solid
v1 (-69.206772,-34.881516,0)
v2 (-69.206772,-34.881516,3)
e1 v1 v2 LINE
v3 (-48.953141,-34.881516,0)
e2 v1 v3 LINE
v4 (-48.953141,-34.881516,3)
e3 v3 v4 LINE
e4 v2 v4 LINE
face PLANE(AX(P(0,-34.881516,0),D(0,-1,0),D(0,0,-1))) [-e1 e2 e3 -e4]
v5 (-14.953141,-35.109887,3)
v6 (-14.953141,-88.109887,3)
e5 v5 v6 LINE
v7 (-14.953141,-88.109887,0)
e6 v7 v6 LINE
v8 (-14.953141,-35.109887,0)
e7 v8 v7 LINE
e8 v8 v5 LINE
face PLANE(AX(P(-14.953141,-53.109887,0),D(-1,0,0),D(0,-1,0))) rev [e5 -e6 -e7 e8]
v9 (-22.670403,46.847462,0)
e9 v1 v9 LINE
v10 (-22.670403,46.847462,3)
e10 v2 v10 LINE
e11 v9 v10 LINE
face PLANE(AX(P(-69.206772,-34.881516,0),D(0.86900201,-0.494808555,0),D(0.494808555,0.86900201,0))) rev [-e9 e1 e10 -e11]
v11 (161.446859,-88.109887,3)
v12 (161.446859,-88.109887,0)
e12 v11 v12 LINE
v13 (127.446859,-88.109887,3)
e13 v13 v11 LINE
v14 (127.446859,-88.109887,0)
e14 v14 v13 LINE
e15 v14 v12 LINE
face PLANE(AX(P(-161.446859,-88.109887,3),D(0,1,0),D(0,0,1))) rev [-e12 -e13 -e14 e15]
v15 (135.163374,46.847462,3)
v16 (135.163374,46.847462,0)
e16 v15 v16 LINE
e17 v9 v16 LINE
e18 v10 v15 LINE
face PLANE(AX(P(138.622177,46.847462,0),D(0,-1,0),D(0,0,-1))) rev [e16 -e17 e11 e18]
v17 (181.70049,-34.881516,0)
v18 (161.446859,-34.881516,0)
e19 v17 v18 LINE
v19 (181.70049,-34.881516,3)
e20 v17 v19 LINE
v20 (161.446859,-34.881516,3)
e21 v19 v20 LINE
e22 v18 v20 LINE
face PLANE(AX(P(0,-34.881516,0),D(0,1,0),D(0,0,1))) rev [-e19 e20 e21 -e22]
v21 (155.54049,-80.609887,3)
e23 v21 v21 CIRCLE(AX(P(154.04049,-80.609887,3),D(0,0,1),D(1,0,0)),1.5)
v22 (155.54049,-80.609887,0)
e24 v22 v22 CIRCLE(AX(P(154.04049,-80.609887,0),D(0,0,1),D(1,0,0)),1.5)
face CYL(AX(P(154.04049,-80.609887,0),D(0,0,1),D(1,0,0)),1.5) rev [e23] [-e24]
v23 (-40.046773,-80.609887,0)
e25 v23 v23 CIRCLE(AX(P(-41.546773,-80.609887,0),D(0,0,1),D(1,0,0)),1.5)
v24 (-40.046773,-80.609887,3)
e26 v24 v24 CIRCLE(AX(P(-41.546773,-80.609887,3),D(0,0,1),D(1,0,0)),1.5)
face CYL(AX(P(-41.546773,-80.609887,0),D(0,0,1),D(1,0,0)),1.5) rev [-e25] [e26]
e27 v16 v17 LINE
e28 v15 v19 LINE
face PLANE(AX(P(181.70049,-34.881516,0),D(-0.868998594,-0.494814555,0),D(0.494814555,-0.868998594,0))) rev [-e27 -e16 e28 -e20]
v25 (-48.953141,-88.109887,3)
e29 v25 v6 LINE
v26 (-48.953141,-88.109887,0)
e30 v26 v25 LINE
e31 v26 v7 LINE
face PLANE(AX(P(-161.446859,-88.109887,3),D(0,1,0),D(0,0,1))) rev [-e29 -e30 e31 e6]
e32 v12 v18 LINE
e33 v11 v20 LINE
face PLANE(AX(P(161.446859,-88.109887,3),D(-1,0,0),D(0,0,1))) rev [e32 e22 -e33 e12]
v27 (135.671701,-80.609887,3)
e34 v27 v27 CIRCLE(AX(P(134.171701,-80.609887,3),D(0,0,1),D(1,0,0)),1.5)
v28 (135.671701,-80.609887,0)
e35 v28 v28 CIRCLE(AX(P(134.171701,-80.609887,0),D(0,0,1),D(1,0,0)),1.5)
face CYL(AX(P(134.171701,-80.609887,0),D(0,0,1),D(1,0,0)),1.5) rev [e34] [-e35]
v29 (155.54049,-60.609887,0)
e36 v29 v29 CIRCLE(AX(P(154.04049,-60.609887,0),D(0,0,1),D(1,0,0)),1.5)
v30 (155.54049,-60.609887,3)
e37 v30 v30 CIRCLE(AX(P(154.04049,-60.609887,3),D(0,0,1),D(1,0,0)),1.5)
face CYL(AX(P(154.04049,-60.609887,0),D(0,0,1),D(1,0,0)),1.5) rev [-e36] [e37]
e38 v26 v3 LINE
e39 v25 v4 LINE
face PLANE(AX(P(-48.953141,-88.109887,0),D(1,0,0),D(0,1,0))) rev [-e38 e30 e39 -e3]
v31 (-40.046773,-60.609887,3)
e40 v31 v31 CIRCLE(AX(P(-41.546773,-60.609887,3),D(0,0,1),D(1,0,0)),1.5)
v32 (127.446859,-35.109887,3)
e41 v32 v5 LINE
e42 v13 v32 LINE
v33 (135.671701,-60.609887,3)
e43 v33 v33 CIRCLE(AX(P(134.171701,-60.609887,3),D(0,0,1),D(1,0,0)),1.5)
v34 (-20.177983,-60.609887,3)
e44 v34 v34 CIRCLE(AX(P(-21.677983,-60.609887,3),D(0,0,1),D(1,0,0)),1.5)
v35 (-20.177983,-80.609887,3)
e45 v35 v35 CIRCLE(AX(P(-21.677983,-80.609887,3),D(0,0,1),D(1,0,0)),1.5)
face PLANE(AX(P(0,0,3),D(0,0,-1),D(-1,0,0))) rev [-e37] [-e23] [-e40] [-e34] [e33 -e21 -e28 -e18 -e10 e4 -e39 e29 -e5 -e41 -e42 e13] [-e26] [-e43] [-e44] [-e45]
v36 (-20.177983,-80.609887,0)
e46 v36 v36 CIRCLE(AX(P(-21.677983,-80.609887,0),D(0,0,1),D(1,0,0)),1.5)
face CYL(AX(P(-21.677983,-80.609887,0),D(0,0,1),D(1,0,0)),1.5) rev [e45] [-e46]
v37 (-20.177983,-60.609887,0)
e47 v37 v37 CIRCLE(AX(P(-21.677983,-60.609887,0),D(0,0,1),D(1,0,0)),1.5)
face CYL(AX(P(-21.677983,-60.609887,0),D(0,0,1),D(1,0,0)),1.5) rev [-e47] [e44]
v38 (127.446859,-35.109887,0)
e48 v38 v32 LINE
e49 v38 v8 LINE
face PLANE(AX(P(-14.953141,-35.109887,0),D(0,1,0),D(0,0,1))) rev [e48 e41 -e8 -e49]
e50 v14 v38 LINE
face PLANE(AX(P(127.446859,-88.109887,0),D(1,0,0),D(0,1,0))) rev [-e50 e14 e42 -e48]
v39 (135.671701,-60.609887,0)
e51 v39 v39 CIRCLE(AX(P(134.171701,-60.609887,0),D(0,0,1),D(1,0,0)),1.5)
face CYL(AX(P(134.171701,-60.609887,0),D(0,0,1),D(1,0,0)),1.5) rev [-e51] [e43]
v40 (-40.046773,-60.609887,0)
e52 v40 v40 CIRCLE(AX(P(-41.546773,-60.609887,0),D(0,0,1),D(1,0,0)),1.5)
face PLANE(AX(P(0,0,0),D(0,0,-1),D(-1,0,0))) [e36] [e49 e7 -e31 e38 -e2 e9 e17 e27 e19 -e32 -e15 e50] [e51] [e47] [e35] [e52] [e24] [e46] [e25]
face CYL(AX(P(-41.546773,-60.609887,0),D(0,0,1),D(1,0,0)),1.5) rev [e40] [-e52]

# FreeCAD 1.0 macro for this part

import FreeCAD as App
import Part
import Sketcher
Q = App.Units.Quantity

doc = App.newDocument("Part")
body = doc.addObject("PartDesign::Body", "Body")

# Sketch on XY plane
sketch1 = doc.addObject("Sketcher::SketchObject", "Sketch")
body.addObject(sketch1)
sketch1.AttachmentSupport = (doc.XY_Plane, [""])
sketch1.MapMode = "FlatFace"
sketch1.addGeometry([
    Part.LineSegment(App.Vector(-161.446859, 88.109887, 0), App.Vector(-161.446859, -88.109887, 0)),
    Part.LineSegment(App.Vector(-161.446859, -88.109887, 0), App.Vector(161.446859, -88.109887, 0)),
    Part.LineSegment(App.Vector(161.446859, -88.109887, 0), App.Vector(161.446859, 88.109887, 0)),
    Part.LineSegment(App.Vector(161.446859, 88.109887, 0), App.Vector(-161.446859, 88.109887, 0)),
], False)
sketch1.addConstraint([
    Sketcher.Constraint("Coincident", 0, 2, 1, 1),
    Sketcher.Constraint("Coincident", 1, 2, 2, 1),
    Sketcher.Constraint("Coincident", 2, 2, 3, 1),
    Sketcher.Constraint("Coincident", 3, 2, 0, 1),
    Sketcher.Constraint("Vertical", 0),
    Sketcher.Constraint("Horizontal", 1),
    Sketcher.Constraint("Vertical", 2),
    Sketcher.Constraint("Horizontal", 3),
    Sketcher.Constraint("Symmetric", 0, 2, 2, 2, -1, 1),
    Sketcher.Constraint("DistanceX", 1, 1, 1, 2, Q("322.893718 mm")),
    Sketcher.Constraint("DistanceY", 0, 2, 0, 1, Q("176.219774 mm")),
])
pad1 = doc.addObject("PartDesign::Pad", "Pad")
body.addObject(pad1)
pad1.Profile = sketch1
pad1.Length = 3

# Sketch on XY plane
sketch2 = doc.addObject("Sketcher::SketchObject", "Sketch001")
body.addObject(sketch2)
sketch2.AttachmentSupport = (doc.XY_Plane, [""])
sketch2.MapMode = "FlatFace"
sketch2.AttachmentOffset = App.Placement(App.Vector(0, 0, 3), App.Rotation())
sketch2.addGeometry([
    Part.LineSegment(App.Vector(-14.953141, -53.109887, 0), App.Vector(-14.953141, -88.109887, 0)),  # 0
    Part.LineSegment(App.Vector(-14.953141, -88.109887, 0), App.Vector(127.446859, -88.109887, 0)),  # 1
    Part.LineSegment(App.Vector(127.446859, -88.109887, 0), App.Vector(127.446859, -53.109887, 0)),  # 2
    Part.LineSegment(App.Vector(127.446859, -53.109887, 0), App.Vector(-14.953141, -53.109887, 0)),  # 3
    Part.LineSegment(App.Vector(-161.446859, 88.109887, 0), App.Vector(-161.446859, -88.109887, 0)),  # 4
    Part.LineSegment(App.Vector(-161.446859, -88.109887, 0), App.Vector(-48.953141, -88.109887, 0)),  # 5
    Part.LineSegment(App.Vector(-48.953141, -88.109887, 0), App.Vector(-48.953141, 88.109887, 0)),  # 6
    Part.LineSegment(App.Vector(-48.953141, 88.109887, 0), App.Vector(-161.446859, 88.109887, 0)),  # 7
], False)
sketch2.addConstraint([
    Sketcher.Constraint("Coincident", 0, 2, 1, 1),
    Sketcher.Constraint("Coincident", 1, 2, 2, 1),
    Sketcher.Constraint("Coincident", 2, 2, 3, 1),
    Sketcher.Constraint("Coincident", 3, 2, 0, 1),
    Sketcher.Constraint("Coincident", 4, 2, 5, 1),
    Sketcher.Constraint("Coincident", 5, 2, 6, 1),
    Sketcher.Constraint("Coincident", 6, 2, 7, 1),
    Sketcher.Constraint("Coincident", 7, 2, 4, 1),
    Sketcher.Constraint("Vertical", 0),
    Sketcher.Constraint("Horizontal", 1),
    Sketcher.Constraint("Vertical", 2),
    Sketcher.Constraint("Horizontal", 3),
    Sketcher.Constraint("Vertical", 4),
    Sketcher.Constraint("Horizontal", 5),
    Sketcher.Constraint("Vertical", 6),
    Sketcher.Constraint("Horizontal", 7),
    Sketcher.Constraint("Horizontal", 1, 2, 4, 2),
    Sketcher.Constraint("DistanceY", 0, 2, 0, 1, Q("35 mm")),
    Sketcher.Constraint("DistanceX", 1, 1, 1, 2, Q("142.4 mm")),
    Sketcher.Constraint("DistanceX", 5, 2, 0, 2, Q("34 mm")),
    Sketcher.Constraint("DistanceX", 5, 1, 5, 2, Q("112.493718 mm")),
    Sketcher.Constraint("DistanceY", 4, 2, 4, 1, Q("176.219774 mm")),
    Sketcher.Constraint("DistanceX", 0, 2, -1, 1, Q("14.953141 mm")),
    Sketcher.Constraint("DistanceY", 0, 2, -1, 1, Q("88.109887 mm")),
])
pocket1 = doc.addObject("PartDesign::Pocket", "Pocket")
body.addObject(pocket1)
pocket1.Profile = sketch2
pocket1.Length = 3

# Sketch on XY plane
sketch3 = doc.addObject("Sketcher::SketchObject", "Sketch002")
body.addObject(sketch3)
sketch3.AttachmentSupport = (doc.XY_Plane, [""])
sketch3.MapMode = "FlatFace"
sketch3.AttachmentOffset = App.Placement(App.Vector(0, 0, 3), App.Rotation())
sketch3.addGeometry([
    Part.LineSegment(App.Vector(-14.953141, -35.109887, 0), App.Vector(-14.953141, -53.109887, 0)),
    Part.LineSegment(App.Vector(-14.953141, -53.109887, 0), App.Vector(127.446859, -53.109887, 0)),
    Part.LineSegment(App.Vector(127.446859, -53.109887, 0), App.Vector(127.446859, -35.109887, 0)),
    Part.LineSegment(App.Vector(127.446859, -35.109887, 0), App.Vector(-14.953141, -35.109887, 0)),
], False)
sketch3.addConstraint([
    Sketcher.Constraint("Coincident", 0, 2, 1, 1),
    Sketcher.Constraint("Coincident", 1, 2, 2, 1),
    Sketcher.Constraint("Coincident", 2, 2, 3, 1),
    Sketcher.Constraint("Coincident", 3, 2, 0, 1),
    Sketcher.Constraint("Vertical", 0),
    Sketcher.Constraint("Horizontal", 1),
    Sketcher.Constraint("Vertical", 2),
    Sketcher.Constraint("Horizontal", 3),
    Sketcher.Constraint("DistanceY", 0, 2, 0, 1, Q("18 mm")),
    Sketcher.Constraint("DistanceX", 1, 1, 1, 2, Q("142.4 mm")),
    Sketcher.Constraint("DistanceX", 0, 2, -1, 1, Q("14.953141 mm")),
    Sketcher.Constraint("DistanceY", 0, 2, -1, 1, Q("53.109887 mm")),
])
pocket2 = doc.addObject("PartDesign::Pocket", "Pocket001")
body.addObject(pocket2)
pocket2.Profile = sketch3
pocket2.Type = "ThroughAll"

# Sketch on XY plane
sketch4 = doc.addObject("Sketcher::SketchObject", "Sketch003")
body.addObject(sketch4)
sketch4.AttachmentSupport = (doc.XY_Plane, [""])
sketch4.MapMode = "FlatFace"
sketch4.AttachmentOffset = App.Placement(App.Vector(0, 0, 3), App.Rotation())
sketch4.addGeometry([
    Part.Circle(App.Vector(154.04049, -60.609887, 0), App.Vector(0, 0, 1), 1.5),  # 0
    Part.Circle(App.Vector(154.04049, -80.609887, 0), App.Vector(0, 0, 1), 1.5),  # 1
    Part.Circle(App.Vector(134.171701, -60.609887, 0), App.Vector(0, 0, 1), 1.5),  # 2
    Part.Circle(App.Vector(134.171701, -80.609887, 0), App.Vector(0, 0, 1), 1.5),  # 3
    Part.Circle(App.Vector(-21.677983, -60.609887, 0), App.Vector(0, 0, 1), 1.5),  # 4
    Part.Circle(App.Vector(-21.677983, -80.609887, 0), App.Vector(0, 0, 1), 1.5),  # 5
    Part.Circle(App.Vector(-41.546773, -60.609887, 0), App.Vector(0, 0, 1), 1.5),  # 6
    Part.Circle(App.Vector(-41.546773, -80.609887, 0), App.Vector(0, 0, 1), 1.5),  # 7
], False)
sketch4.addConstraint([
    Sketcher.Constraint("Equal", 0, 1),
    Sketcher.Constraint("Equal", 1, 2),
    Sketcher.Constraint("Equal", 2, 3),
    Sketcher.Constraint("Equal", 3, 4),
    Sketcher.Constraint("Equal", 4, 5),
    Sketcher.Constraint("Equal", 5, 6),
    Sketcher.Constraint("Equal", 6, 7),
    Sketcher.Constraint("Horizontal", 0, 3, 2, 3),
    Sketcher.Constraint("Horizontal", 1, 3, 3, 3),
    Sketcher.Constraint("Horizontal", 2, 3, 4, 3),
    Sketcher.Constraint("Horizontal", 3, 3, 5, 3),
    Sketcher.Constraint("Horizontal", 4, 3, 6, 3),
    Sketcher.Constraint("Horizontal", 5, 3, 7, 3),
    Sketcher.Constraint("Vertical", 0, 3, 1, 3),
    Sketcher.Constraint("Vertical", 2, 3, 3, 3),
    Sketcher.Constraint("Vertical", 4, 3, 5, 3),
    Sketcher.Constraint("Vertical", 6, 3, 7, 3),
    Sketcher.Constraint("Diameter", 0, Q("3 mm")),
    Sketcher.Constraint("DistanceY", 1, 3, 0, 3, Q("20 mm")),
    Sketcher.Constraint("DistanceX", -1, 1, 2, 3, Q("134.171701 mm")),
    Sketcher.Constraint("DistanceX", -1, 1, 0, 3, Q("154.04049 mm")),
    Sketcher.Constraint("DistanceX", 6, 3, 4, 3, Q("19.86879 mm")),
    Sketcher.Constraint("DistanceY", 0, 3, -1, 1, Q("60.609887 mm")),
    Sketcher.Constraint("DistanceX", 4, 3, -1, 1, Q("21.677983 mm")),
])
pocket3 = doc.addObject("PartDesign::Pocket", "Pocket002")
body.addObject(pocket3)
pocket3.Profile = sketch4
pocket3.Type = "ThroughAll"

# Sketch on XY plane
sketch5 = doc.addObject("Sketcher::SketchObject", "Sketch004")
body.addObject(sketch5)
sketch5.AttachmentSupport = (doc.XY_Plane, [""])
sketch5.MapMode = "FlatFace"
sketch5.AttachmentOffset = App.Placement(App.Vector(0, 0, 3), App.Rotation())
sketch5.addGeometry([
    Part.LineSegment(App.Vector(-48.953141, -34.881516, 0), App.Vector(-48.953141, 3.54405, 0)),  # 0
    Part.LineSegment(App.Vector(-48.953141, 3.54405, 0), App.Vector(-69.206772, -34.881516, 0)),  # 1
    Part.LineSegment(App.Vector(-69.206772, -34.881516, 0), App.Vector(-48.953141, -34.881516, 0)),  # 2
    Part.LineSegment(App.Vector(161.446859, 3.54405, 0), App.Vector(161.446859, -34.881516, 0)),  # 3
    Part.LineSegment(App.Vector(161.446859, -34.881516, 0), App.Vector(181.70049, -34.881516, 0)),  # 4
    Part.LineSegment(App.Vector(181.70049, -34.881516, 0), App.Vector(161.446859, 3.54405, 0)),  # 5
], False)
sketch5.addConstraint([
    Sketcher.Constraint("Coincident", 0, 2, 1, 1),
    Sketcher.Constraint("Coincident", 1, 2, 2, 1),
    Sketcher.Constraint("Coincident", 2, 2, 0, 1),
    Sketcher.Constraint("Coincident", 3, 2, 4, 1),
    Sketcher.Constraint("Coincident", 4, 2, 5, 1),
    Sketcher.Constraint("Coincident", 5, 2, 3, 1),
    Sketcher.Constraint("Vertical", 0),
    Sketcher.Constraint("Horizontal", 2),
    Sketcher.Constraint("Vertical", 3),
    Sketcher.Constraint("Horizontal", 4),
    Sketcher.Constraint("Horizontal", 2, 2, 3, 2),
    Sketcher.Constraint("Horizontal", 0, 2, 5, 2),
    Sketcher.Constraint("Equal", 2, 4),
    Sketcher.Constraint("DistanceX", 2, 2, 3, 2, Q("210.4 mm")),
    Sketcher.Constraint("DistanceX", 2, 1, 2, 2, Q("20.253631 mm")),
    Sketcher.Constraint("Distance", 1, Q("43.436548 mm")),
    Sketcher.Constraint("DistanceX", 0, 2, -1, 1, Q("48.953141 mm")),
    Sketcher.Constraint("DistanceY", -1, 1, 0, 2, Q("3.54405 mm")),
])
pad2 = doc.addObject("PartDesign::Pad", "Pad001")
body.addObject(pad2)
pad2.Profile = sketch5
pad2.Length = 3
pad2.Reversed = True

# Sketch on XY plane
sketch6 = doc.addObject("Sketcher::SketchObject", "Sketch005")
body.addObject(sketch6)
sketch6.AttachmentSupport = (doc.XY_Plane, [""])
sketch6.MapMode = "FlatFace"
sketch6.AttachmentOffset = App.Placement(App.Vector(0, 0, 3), App.Rotation())
sketch6.addGeometry([
    Part.LineSegment(App.Vector(-48.953141, 88.109887, 0), App.Vector(-48.953141, 3.54405, 0)),  # 0
    Part.LineSegment(App.Vector(-48.953141, 3.54405, 0), App.Vector(-26.12846, 46.847462, 0)),  # 1
    Part.LineSegment(App.Vector(-26.12846, 46.847462, 0), App.Vector(138.622177, 46.847462, 0)),  # 2
    Part.LineSegment(App.Vector(138.622177, 46.847462, 0), App.Vector(161.446859, 3.54405, 0)),  # 3
    Part.LineSegment(App.Vector(161.446859, 3.54405, 0), App.Vector(161.446859, 88.109887, 0)),  # 4
    Part.LineSegment(App.Vector(161.446859, 88.109887, 0), App.Vector(-48.953141, 88.109887, 0)),  # 5
], False)
sketch6.addConstraint([
    Sketcher.Constraint("Coincident", 0, 2, 1, 1),
    Sketcher.Constraint("Coincident", 1, 2, 2, 1),
    Sketcher.Constraint("Coincident", 2, 2, 3, 1),
    Sketcher.Constraint("Coincident", 3, 2, 4, 1),
    Sketcher.Constraint("Coincident", 4, 2, 5, 1),
    Sketcher.Constraint("Coincident", 5, 2, 0, 1),
    Sketcher.Constraint("Vertical", 0),
    Sketcher.Constraint("Horizontal", 2),
    Sketcher.Constraint("Vertical", 4),
    Sketcher.Constraint("Horizontal", 5),
    Sketcher.Constraint("Horizontal", 0, 2, 3, 2),
    Sketcher.Constraint("Equal", 1, 3),
    Sketcher.Constraint("DistanceX", 5, 2, 5, 1, Q("210.4 mm")),
    Sketcher.Constraint("Distance", 1, Q("48.950501 mm")),
    Sketcher.Constraint("DistanceX", 2, 1, 2, 2, Q("164.750637 mm")),
    Sketcher.Constraint("DistanceY", 0, 2, 0, 1, Q("84.565837 mm")),
    Sketcher.Constraint("DistanceX", 0, 2, -1, 1, Q("48.953141 mm")),
    Sketcher.Constraint("DistanceY", -1, 1, 0, 2, Q("3.54405 mm")),
])
pocket4 = doc.addObject("PartDesign::Pocket", "Pocket003")
body.addObject(pocket4)
pocket4.Profile = sketch6
pocket4.Type = "ThroughAll"

# Sketch on XY plane
sketch7 = doc.addObject("Sketcher::SketchObject", "Sketch006")
body.addObject(sketch7)
sketch7.AttachmentSupport = (doc.XY_Plane, [""])
sketch7.MapMode = "FlatFace"
sketch7.AttachmentOffset = App.Placement(App.Vector(0, 0, 3), App.Rotation())
sketch7.addGeometry([
    Part.LineSegment(App.Vector(-69.206772, -34.881516, 0), App.Vector(-22.629208, 46.919812, 0)),  # 0
    Part.LineSegment(App.Vector(-22.629208, 46.919812, 0), App.Vector(-26.12846, 46.847462, 0)),  # 1
    Part.LineSegment(App.Vector(-26.12846, 46.847462, 0), App.Vector(-69.206772, -34.881516, 0)),  # 2
    Part.LineSegment(App.Vector(135.122177, 46.919812, 0), App.Vector(181.70049, -34.881516, 0)),  # 3
    Part.LineSegment(App.Vector(181.70049, -34.881516, 0), App.Vector(138.622177, 46.847462, 0)),  # 4
    Part.LineSegment(App.Vector(138.622177, 46.847462, 0), App.Vector(135.122177, 46.919812, 0)),  # 5
], False)
sketch7.addConstraint([
    Sketcher.Constraint("Coincident", 0, 2, 1, 1),
    Sketcher.Constraint("Coincident", 1, 2, 2, 1),
    Sketcher.Constraint("Coincident", 2, 2, 0, 1),
    Sketcher.Constraint("Coincident", 3, 2, 4, 1),
    Sketcher.Constraint("Coincident", 4, 2, 5, 1),
    Sketcher.Constraint("Coincident", 5, 2, 3, 1),
    Sketcher.Constraint("Horizontal", 2, 2, 3, 2),
    Sketcher.Constraint("Horizontal", 1, 2, 4, 2),
    Sketcher.Constraint("Horizontal", 0, 2, 5, 2),
    Sketcher.Constraint("Equal", 2, 4),
    Sketcher.Constraint("Distance", 1, Q("3.5 mm")),
    Sketcher.Constraint("DistanceX", 5, 2, 4, 2, Q("3.5 mm")),
    Sketcher.Constraint("Distance", 2, Q("92.38705 mm")),
    Sketcher.Constraint("DistanceY", -1, 1, 0, 2, Q("46.919812 mm")),
    Sketcher.Constraint("DistanceX", 1, 2, -1, 1, Q("26.12846 mm")),
    Sketcher.Constraint("DistanceX", -1, 1, 3, 2, Q("181.70049 mm")),
    Sketcher.Constraint("DistanceY", 1, 2, 0, 2, Q("0.07235 mm")),
    Sketcher.Constraint("DistanceY", 2, 2, 1, 2, Q("81.728979 mm")),
])
pocket5 = doc.addObject("PartDesign::Pocket", "Pocket004")
body.addObject(pocket5)
pocket5.Profile = sketch7
pocket5.Type = "ThroughAll"

doc.recompute()
